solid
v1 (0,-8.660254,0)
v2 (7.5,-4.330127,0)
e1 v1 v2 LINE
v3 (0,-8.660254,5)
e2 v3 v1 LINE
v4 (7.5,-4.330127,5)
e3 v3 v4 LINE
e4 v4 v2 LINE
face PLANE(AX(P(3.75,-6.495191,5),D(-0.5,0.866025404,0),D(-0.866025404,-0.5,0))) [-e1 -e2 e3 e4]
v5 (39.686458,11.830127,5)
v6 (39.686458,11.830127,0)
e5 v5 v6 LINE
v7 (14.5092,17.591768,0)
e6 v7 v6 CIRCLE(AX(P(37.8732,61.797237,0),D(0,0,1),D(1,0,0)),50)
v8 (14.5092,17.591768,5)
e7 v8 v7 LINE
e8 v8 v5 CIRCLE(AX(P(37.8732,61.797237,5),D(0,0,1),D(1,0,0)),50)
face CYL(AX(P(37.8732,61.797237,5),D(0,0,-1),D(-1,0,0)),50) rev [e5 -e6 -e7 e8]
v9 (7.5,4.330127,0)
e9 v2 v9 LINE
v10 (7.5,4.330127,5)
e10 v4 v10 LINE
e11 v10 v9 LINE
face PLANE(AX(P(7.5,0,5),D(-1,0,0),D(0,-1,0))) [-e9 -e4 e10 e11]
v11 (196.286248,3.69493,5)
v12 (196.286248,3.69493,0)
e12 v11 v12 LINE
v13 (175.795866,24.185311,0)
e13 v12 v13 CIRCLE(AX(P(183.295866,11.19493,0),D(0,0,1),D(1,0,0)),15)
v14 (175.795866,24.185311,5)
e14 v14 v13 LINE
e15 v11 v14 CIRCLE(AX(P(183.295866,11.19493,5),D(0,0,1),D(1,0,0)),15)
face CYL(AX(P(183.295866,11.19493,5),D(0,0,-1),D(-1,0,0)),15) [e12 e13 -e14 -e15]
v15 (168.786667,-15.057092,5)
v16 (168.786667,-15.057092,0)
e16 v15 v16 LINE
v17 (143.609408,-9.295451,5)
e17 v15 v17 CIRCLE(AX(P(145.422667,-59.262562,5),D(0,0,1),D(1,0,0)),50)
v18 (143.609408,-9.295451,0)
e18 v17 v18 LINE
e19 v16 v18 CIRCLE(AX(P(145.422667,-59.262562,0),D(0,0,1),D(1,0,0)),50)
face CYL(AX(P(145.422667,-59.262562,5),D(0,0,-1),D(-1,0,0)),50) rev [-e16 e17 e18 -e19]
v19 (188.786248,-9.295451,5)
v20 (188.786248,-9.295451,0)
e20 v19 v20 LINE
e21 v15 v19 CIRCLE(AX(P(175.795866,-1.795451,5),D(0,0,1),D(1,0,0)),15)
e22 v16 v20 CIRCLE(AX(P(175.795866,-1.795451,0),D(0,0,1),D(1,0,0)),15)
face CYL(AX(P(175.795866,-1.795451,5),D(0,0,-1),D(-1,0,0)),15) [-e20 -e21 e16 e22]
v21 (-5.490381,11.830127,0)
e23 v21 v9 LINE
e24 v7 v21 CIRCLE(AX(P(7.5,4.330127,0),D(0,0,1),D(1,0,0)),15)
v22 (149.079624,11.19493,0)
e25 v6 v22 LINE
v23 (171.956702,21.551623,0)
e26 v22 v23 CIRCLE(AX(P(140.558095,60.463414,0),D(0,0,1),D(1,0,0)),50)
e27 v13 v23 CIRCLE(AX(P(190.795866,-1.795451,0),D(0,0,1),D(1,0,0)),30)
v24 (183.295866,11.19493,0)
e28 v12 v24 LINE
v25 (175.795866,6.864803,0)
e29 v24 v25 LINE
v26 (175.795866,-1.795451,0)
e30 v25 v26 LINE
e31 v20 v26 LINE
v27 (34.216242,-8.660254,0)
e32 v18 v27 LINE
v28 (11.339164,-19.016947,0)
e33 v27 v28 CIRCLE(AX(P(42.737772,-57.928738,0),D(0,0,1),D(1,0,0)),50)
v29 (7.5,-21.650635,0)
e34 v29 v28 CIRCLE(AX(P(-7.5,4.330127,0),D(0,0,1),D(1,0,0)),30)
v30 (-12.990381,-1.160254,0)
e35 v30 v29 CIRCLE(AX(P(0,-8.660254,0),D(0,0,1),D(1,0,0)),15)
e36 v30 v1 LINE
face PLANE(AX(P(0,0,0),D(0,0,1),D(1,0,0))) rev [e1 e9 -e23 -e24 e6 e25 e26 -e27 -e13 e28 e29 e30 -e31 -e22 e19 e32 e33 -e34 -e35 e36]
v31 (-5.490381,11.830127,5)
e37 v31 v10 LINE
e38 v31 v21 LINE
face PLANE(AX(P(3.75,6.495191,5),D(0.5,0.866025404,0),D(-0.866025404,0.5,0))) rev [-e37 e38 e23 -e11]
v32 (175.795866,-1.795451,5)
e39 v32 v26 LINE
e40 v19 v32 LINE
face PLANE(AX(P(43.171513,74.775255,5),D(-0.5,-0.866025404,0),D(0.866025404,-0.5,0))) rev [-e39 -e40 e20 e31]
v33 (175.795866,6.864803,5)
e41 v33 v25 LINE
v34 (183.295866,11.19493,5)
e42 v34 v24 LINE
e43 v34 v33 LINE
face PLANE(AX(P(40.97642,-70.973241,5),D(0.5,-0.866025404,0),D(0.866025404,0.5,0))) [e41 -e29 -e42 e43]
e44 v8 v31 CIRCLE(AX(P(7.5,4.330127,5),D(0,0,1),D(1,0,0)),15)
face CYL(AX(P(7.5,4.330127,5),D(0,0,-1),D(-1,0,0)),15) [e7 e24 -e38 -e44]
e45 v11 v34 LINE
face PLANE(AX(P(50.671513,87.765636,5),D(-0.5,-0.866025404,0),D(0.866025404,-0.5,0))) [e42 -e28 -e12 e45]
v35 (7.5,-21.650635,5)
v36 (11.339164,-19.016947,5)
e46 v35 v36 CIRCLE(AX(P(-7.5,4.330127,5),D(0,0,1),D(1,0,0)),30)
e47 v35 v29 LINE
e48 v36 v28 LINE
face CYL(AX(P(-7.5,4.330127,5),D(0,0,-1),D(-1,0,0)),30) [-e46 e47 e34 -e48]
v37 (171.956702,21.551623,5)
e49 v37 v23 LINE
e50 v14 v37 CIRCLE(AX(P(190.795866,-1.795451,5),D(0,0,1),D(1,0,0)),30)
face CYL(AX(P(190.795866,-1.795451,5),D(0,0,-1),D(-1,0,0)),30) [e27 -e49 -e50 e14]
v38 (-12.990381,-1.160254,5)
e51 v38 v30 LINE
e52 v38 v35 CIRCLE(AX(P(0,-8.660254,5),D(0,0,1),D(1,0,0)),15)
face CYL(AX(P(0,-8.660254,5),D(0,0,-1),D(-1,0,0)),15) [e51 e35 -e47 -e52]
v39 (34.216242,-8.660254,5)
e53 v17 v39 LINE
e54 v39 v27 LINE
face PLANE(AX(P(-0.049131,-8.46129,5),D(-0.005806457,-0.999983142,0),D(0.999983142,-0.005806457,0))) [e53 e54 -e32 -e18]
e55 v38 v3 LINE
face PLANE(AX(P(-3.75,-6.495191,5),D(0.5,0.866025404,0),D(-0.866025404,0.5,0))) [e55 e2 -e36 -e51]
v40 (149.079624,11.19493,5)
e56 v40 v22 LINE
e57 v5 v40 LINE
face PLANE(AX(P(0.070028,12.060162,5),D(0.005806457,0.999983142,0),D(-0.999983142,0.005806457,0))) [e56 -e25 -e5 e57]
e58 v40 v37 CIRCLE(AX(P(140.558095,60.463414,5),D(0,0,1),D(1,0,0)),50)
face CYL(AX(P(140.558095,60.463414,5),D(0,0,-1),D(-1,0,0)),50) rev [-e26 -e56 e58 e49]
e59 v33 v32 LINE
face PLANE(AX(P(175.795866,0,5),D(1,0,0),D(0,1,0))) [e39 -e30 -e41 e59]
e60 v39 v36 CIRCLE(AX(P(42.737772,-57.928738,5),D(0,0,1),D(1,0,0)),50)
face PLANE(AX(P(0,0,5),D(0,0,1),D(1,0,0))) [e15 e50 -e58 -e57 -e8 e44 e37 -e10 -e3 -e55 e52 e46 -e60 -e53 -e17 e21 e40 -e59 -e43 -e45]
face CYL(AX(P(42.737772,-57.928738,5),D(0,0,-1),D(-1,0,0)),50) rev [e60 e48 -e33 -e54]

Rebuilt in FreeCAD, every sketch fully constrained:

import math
import FreeCAD as App
import Part
import Sketcher
from FreeCAD import Vector
Q = App.Units.Quantity

doc = App.newDocument("Part")
body = doc.addObject("PartDesign::Body", "Body")

# Sketch on XY plane
sketch1 = body.newObject("Sketcher::SketchObject", "Sketch")
sketch1.AttachmentSupport = (doc.getObject("XY_Plane"), [""])
sketch1.MapMode = "FlatFace"
sketch1.addGeometry([
    Part.LineSegment(Vector(7.5, 4.3, 0), Vector(7.5, -4.3, 0)),  # 0
    Part.LineSegment(Vector(7.5, -4.3, 0), Vector(0, -8.7, 0)),  # 1
    Part.LineSegment(Vector(0, -8.7, 0), Vector(-13, -1.2, 0)),  # 2
    Part.ArcOfCircle(Part.Circle(Vector(0, -8.7, 0), Vector(0, 0, 1), 15), math.radians(150), math.radians(300)),  # 3
    Part.ArcOfCircle(Part.Circle(Vector(-7.5, 4.3, 0), Vector(0, 0, 1), 30), math.radians(-60), math.radians(-51.1)),  # 4
    Part.ArcOfCircle(Part.Circle(Vector(42.7, -57.9, 0), Vector(0, 0, 1), 50), math.radians(100), math.radians(129)),  # 5
    Part.LineSegment(Vector(34.2, -8.7, 0), Vector(143.6, -9.3, 0)),  # 6
    Part.ArcOfCircle(Part.Circle(Vector(145.4, -59.3, 0), Vector(0, 0, 1), 50), math.radians(62), math.radians(92)),  # 7
    Part.ArcOfCircle(Part.Circle(Vector(175.8, -1.8, 0), Vector(0, 0, 1), 15), math.radians(-118), math.radians(-30)),  # 8
    Part.LineSegment(Vector(188.8, -9.3, 0), Vector(175.8, -1.8, 0)),  # 9
    Part.LineSegment(Vector(175.8, -1.8, 0), Vector(175.8, 6.9, 0)),  # 10
    Part.LineSegment(Vector(175.8, 6.9, 0), Vector(183.3, 11.2, 0)),  # 11
    Part.LineSegment(Vector(183.3, 11.2, 0), Vector(196.3, 3.7, 0)),  # 12
    Part.ArcOfCircle(Part.Circle(Vector(183.3, 11.2, 0), Vector(0, 0, 1), 15), math.radians(-30), math.radians(120)),  # 13
    Part.ArcOfCircle(Part.Circle(Vector(190.8, -1.8, 0), Vector(0, 0, 1), 30), math.radians(120), math.radians(128.9)),  # 14
    Part.ArcOfCircle(Part.Circle(Vector(140.6, 60.5, 0), Vector(0, 0, 1), 50), math.radians(-80), math.radians(-51)),  # 15
    Part.LineSegment(Vector(149.1, 11.2, 0), Vector(39.7, 11.8, 0)),  # 16
    Part.ArcOfCircle(Part.Circle(Vector(37.9, 61.8, 0), Vector(0, 0, 1), 50), math.radians(-118), math.radians(-88)),  # 17
    Part.ArcOfCircle(Part.Circle(Vector(7.5, 4.3, 0), Vector(0, 0, 1), 15), math.radians(62), math.radians(150)),  # 18
    Part.LineSegment(Vector(-5.5, 11.8, 0), Vector(7.5, 4.3, 0)),  # 19
], False)
sketch1.addConstraint([
    Sketcher.Constraint("Coincident", 0, 2, 1, 1),
    Sketcher.Constraint("Coincident", 1, 2, 2, 1),
    Sketcher.Constraint("Coincident", 2, 2, 3, 1),
    Sketcher.Constraint("Tangent", 3, 2, 4, 1),
    Sketcher.Constraint("Tangent", 4, 2, 5, 2),
    Sketcher.Constraint("Coincident", 5, 1, 6, 1),
    Sketcher.Constraint("Coincident", 6, 2, 7, 2),
    Sketcher.Constraint("Tangent", 7, 1, 8, 1),
    Sketcher.Constraint("Coincident", 8, 2, 9, 1),
    Sketcher.Constraint("Coincident", 9, 2, 10, 1),
    Sketcher.Constraint("Coincident", 10, 2, 11, 1),
    Sketcher.Constraint("Coincident", 11, 2, 12, 1),
    Sketcher.Constraint("Coincident", 12, 2, 13, 1),
    Sketcher.Constraint("Tangent", 13, 2, 14, 1),
    Sketcher.Constraint("Tangent", 14, 2, 15, 2),
    Sketcher.Constraint("Coincident", 15, 1, 16, 1),
    Sketcher.Constraint("Coincident", 16, 2, 17, 2),
    Sketcher.Constraint("Tangent", 17, 1, 18, 1),
    Sketcher.Constraint("Coincident", 18, 2, 19, 1),
    Sketcher.Constraint("Coincident", 19, 2, 0, 1),
    Sketcher.Constraint("Vertical", 0),
    Sketcher.Constraint("Vertical", 10),
    Sketcher.Constraint("Coincident", 1, 2, 3, 3),
    Sketcher.Constraint("Coincident", 9, 2, 8, 3),
    Sketcher.Constraint("Coincident", 11, 2, 13, 3),
    Sketcher.Constraint("Coincident", 19, 2, 18, 3),
    Sketcher.Constraint("Equal", 5, 7),
    Sketcher.Constraint("Equal", 3, 8),
    Sketcher.Constraint("Equal", 8, 13),
    Sketcher.Constraint("Equal", 4, 14),
    Sketcher.Constraint("Equal", 7, 15),
    Sketcher.Constraint("Equal", 15, 17),
    Sketcher.Constraint("Equal", 13, 18),
    Sketcher.Constraint("Symmetric", 4, 3, 18, 3, -2),
    Sketcher.Constraint("PointOnObject", 3, 3, -2),
    Sketcher.Constraint("Parallel", 2, 9),
    Sketcher.Constraint("Parallel", 1, 11),
    Sketcher.Constraint("Parallel", 9, 12),
    Sketcher.Constraint("Parallel", 6, 16),
    Sketcher.Constraint("Parallel", 12, 19),
    Sketcher.Constraint("Horizontal", 8, 3, 14, 3),
    Sketcher.Constraint("Horizontal", 1, 2, 5, 1),
    Sketcher.Constraint("Horizontal", 6, 2, 8, 2),
    Sketcher.Constraint("Horizontal", 11, 2, 15, 1),
    Sketcher.Constraint("Horizontal", 16, 2, 18, 2),
    Sketcher.Constraint("Vertical", 0, 2, 3, 2),
    Sketcher.Constraint("Vertical", 10, 2, 13, 2),
    Sketcher.Constraint("Equal", 0, 10),
    Sketcher.Constraint("Radius", 3, 15.0),
    Sketcher.Constraint("Radius", 5, 50.0),
    Sketcher.Constraint("Angle", 1, Q("-150 deg")),
    Sketcher.Constraint("Angle", 2, Q("150 deg")),
    Sketcher.Constraint("DistanceX", 8, 3, 14, 3, 15.0),
    Sketcher.Constraint("DistanceX", -1, 1, 17, 3, 37.8732),
    Sketcher.Constraint("DistanceX", 7, 3, 8, 3, 30.3732),
    Sketcher.Constraint("Distance", 6, 109.39501),
    Sketcher.Constraint("DistanceX", -1, 1, 5, 3, 42.737772),
    Sketcher.Constraint("DistanceY", 5, 3, -1, 1, 57.928738),
    Sketcher.Constraint("DistanceY", 7, 3, -1, 1, 59.262562),
])
pad1 = body.newObject("PartDesign::Pad", "Pad")
pad1.Profile = sketch1
pad1.Length = 5

doc.recompute()
